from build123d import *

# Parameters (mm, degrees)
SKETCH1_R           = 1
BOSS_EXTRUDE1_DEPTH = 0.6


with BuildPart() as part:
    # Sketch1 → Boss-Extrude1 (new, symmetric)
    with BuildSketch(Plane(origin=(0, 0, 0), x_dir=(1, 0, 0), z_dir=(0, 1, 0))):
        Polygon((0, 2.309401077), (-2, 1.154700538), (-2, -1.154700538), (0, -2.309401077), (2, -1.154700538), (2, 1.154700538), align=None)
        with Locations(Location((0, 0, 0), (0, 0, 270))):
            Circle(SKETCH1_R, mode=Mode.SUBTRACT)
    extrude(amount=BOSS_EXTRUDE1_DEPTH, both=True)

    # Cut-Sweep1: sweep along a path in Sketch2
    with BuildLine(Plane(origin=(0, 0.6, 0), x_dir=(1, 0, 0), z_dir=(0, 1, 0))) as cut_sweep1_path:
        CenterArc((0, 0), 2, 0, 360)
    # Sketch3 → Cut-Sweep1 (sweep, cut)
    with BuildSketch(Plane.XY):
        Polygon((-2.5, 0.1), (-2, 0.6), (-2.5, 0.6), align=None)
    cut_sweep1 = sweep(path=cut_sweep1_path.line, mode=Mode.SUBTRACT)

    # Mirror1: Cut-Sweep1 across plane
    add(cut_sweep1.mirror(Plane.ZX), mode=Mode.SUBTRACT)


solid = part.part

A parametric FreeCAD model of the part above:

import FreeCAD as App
import Part
import Sketcher
Q = App.Units.Quantity

doc = App.newDocument("Part")
body = doc.addObject("PartDesign::Body", "Body")

sketch1 = body.newObject("Sketcher::SketchObject", "Sketch")
sketch1.AttachmentSupport = (doc.getObject("XZ_Plane"), [""])
sketch1.MapMode = "FlatFace"
sketch1.addGeometry([
    Part.LineSegment(App.Vector(0, -2.3, 0), App.Vector(-2, -1.2, 0)),
    Part.LineSegment(App.Vector(-2, -1.2, 0), App.Vector(-2, 1.2, 0)),
    Part.LineSegment(App.Vector(-2, 1.2, 0), App.Vector(0, 2.3, 0)),
    Part.LineSegment(App.Vector(0, 2.3, 0), App.Vector(2, 1.2, 0)),
    Part.LineSegment(App.Vector(2, 1.2, 0), App.Vector(2, -1.2, 0)),
    Part.LineSegment(App.Vector(2, -1.2, 0), App.Vector(0, -2.3, 0)),
    Part.Circle(App.Vector(0, 0, 0), App.Vector(0, 0, 1), 1),
], False)
sketch1.addConstraint([
    Sketcher.Constraint("Coincident", 0, 2, 1, 1),
    Sketcher.Constraint("Coincident", 1, 2, 2, 1),
    Sketcher.Constraint("Coincident", 2, 2, 3, 1),
    Sketcher.Constraint("Coincident", 3, 2, 4, 1),
    Sketcher.Constraint("Coincident", 4, 2, 5, 1),
    Sketcher.Constraint("Coincident", 5, 2, 0, 1),
    Sketcher.Constraint("Vertical", 1),
    Sketcher.Constraint("Vertical", 4),
    Sketcher.Constraint("Coincident", 6, 3, -1, 1),
    Sketcher.Constraint("Symmetric", 0, 2, 3, 2, -1, 1),
    Sketcher.Constraint("Symmetric", 2, 2, 5, 2, -1, 1),
    Sketcher.Constraint("PointOnObject", 2, 2, -2),
    Sketcher.Constraint("Parallel", 2, 5),
    Sketcher.Constraint("Horizontal", 1, 2, 3, 2),
    Sketcher.Constraint("Diameter", 6, Q("2 mm")),
    Sketcher.Constraint("Angle", 0, Q("150 deg")),
    Sketcher.Constraint("DistanceX", 0, 2, -1, 1, Q("2 mm")),
    Sketcher.Constraint("DistanceY", 1, 1, 1, 2, Q("2.309401 mm")),
])
pad1 = body.newObject("PartDesign::Pad", "Pad")
pad1.Profile = sketch1
pad1.Length = 1.2
pad1.Midplane = True

sketch2 = body.newObject("Sketcher::SketchObject", "Sketch001")
sketch2.AttachmentSupport = (doc.getObject("XY_Plane"), [""])
sketch2.MapMode = "FlatFace"
sketch2.addGeometry([
    Part.LineSegment(App.Vector(-2.5, 0.1, 0), App.Vector(-2, 0.6, 0)),
    Part.LineSegment(App.Vector(-2, 0.6, 0), App.Vector(-2.5, 0.6, 0)),
    Part.LineSegment(App.Vector(-2.5, 0.6, 0), App.Vector(-2.5, 0.1, 0)),
], False)
sketch2.addConstraint([
    Sketcher.Constraint("Coincident", 0, 2, 1, 1),
    Sketcher.Constraint("Coincident", 1, 2, 2, 1),
    Sketcher.Constraint("Coincident", 2, 2, 0, 1),
    Sketcher.Constraint("Horizontal", 1),
    Sketcher.Constraint("Vertical", 2),
    Sketcher.Constraint("Equal", 1, 2),
    Sketcher.Constraint("DistanceX", 1, 2, 1, 1, Q("0.5 mm")),
    Sketcher.Constraint("DistanceX", 0, 2, -1, 1, Q("2 mm")),
    Sketcher.Constraint("DistanceY", -1, 1, 0, 2, Q("0.6 mm")),
])

sketch3 = body.newObject("Sketcher::SketchObject", "Sketch002")
sketch3.AttachmentSupport = (doc.getObject("XZ_Plane"), [""])
sketch3.MapMode = "FlatFace"
sketch3.AttachmentOffset = App.Placement(App.Vector(0, 0, -0.6), App.Rotation())
sketch3.addGeometry(Part.Circle(App.Vector(0, 0, 0), App.Vector(0, 0, 1), 2), False)
sketch3.addConstraint([
    Sketcher.Constraint("Coincident", 0, 3, -1, 1),
    Sketcher.Constraint("Diameter", 0, Q("4 mm")),
])
doc.recompute()

subtractivepipe = body.newObject("PartDesign::SubtractivePipe", "SubtractivePipe")
subtractivepipe.Profile = sketch2
subtractivepipe.Spine = (sketch3, ["Edge1"])
doc.recompute()

mirrored = body.newObject("PartDesign::Mirrored", "Mirrored")
mirrored.Originals = [subtractivepipe]
mirrored.MirrorPlane = (doc.getObject("XZ_Plane"), [""])
body.Tip = mirrored

doc.recompute()
